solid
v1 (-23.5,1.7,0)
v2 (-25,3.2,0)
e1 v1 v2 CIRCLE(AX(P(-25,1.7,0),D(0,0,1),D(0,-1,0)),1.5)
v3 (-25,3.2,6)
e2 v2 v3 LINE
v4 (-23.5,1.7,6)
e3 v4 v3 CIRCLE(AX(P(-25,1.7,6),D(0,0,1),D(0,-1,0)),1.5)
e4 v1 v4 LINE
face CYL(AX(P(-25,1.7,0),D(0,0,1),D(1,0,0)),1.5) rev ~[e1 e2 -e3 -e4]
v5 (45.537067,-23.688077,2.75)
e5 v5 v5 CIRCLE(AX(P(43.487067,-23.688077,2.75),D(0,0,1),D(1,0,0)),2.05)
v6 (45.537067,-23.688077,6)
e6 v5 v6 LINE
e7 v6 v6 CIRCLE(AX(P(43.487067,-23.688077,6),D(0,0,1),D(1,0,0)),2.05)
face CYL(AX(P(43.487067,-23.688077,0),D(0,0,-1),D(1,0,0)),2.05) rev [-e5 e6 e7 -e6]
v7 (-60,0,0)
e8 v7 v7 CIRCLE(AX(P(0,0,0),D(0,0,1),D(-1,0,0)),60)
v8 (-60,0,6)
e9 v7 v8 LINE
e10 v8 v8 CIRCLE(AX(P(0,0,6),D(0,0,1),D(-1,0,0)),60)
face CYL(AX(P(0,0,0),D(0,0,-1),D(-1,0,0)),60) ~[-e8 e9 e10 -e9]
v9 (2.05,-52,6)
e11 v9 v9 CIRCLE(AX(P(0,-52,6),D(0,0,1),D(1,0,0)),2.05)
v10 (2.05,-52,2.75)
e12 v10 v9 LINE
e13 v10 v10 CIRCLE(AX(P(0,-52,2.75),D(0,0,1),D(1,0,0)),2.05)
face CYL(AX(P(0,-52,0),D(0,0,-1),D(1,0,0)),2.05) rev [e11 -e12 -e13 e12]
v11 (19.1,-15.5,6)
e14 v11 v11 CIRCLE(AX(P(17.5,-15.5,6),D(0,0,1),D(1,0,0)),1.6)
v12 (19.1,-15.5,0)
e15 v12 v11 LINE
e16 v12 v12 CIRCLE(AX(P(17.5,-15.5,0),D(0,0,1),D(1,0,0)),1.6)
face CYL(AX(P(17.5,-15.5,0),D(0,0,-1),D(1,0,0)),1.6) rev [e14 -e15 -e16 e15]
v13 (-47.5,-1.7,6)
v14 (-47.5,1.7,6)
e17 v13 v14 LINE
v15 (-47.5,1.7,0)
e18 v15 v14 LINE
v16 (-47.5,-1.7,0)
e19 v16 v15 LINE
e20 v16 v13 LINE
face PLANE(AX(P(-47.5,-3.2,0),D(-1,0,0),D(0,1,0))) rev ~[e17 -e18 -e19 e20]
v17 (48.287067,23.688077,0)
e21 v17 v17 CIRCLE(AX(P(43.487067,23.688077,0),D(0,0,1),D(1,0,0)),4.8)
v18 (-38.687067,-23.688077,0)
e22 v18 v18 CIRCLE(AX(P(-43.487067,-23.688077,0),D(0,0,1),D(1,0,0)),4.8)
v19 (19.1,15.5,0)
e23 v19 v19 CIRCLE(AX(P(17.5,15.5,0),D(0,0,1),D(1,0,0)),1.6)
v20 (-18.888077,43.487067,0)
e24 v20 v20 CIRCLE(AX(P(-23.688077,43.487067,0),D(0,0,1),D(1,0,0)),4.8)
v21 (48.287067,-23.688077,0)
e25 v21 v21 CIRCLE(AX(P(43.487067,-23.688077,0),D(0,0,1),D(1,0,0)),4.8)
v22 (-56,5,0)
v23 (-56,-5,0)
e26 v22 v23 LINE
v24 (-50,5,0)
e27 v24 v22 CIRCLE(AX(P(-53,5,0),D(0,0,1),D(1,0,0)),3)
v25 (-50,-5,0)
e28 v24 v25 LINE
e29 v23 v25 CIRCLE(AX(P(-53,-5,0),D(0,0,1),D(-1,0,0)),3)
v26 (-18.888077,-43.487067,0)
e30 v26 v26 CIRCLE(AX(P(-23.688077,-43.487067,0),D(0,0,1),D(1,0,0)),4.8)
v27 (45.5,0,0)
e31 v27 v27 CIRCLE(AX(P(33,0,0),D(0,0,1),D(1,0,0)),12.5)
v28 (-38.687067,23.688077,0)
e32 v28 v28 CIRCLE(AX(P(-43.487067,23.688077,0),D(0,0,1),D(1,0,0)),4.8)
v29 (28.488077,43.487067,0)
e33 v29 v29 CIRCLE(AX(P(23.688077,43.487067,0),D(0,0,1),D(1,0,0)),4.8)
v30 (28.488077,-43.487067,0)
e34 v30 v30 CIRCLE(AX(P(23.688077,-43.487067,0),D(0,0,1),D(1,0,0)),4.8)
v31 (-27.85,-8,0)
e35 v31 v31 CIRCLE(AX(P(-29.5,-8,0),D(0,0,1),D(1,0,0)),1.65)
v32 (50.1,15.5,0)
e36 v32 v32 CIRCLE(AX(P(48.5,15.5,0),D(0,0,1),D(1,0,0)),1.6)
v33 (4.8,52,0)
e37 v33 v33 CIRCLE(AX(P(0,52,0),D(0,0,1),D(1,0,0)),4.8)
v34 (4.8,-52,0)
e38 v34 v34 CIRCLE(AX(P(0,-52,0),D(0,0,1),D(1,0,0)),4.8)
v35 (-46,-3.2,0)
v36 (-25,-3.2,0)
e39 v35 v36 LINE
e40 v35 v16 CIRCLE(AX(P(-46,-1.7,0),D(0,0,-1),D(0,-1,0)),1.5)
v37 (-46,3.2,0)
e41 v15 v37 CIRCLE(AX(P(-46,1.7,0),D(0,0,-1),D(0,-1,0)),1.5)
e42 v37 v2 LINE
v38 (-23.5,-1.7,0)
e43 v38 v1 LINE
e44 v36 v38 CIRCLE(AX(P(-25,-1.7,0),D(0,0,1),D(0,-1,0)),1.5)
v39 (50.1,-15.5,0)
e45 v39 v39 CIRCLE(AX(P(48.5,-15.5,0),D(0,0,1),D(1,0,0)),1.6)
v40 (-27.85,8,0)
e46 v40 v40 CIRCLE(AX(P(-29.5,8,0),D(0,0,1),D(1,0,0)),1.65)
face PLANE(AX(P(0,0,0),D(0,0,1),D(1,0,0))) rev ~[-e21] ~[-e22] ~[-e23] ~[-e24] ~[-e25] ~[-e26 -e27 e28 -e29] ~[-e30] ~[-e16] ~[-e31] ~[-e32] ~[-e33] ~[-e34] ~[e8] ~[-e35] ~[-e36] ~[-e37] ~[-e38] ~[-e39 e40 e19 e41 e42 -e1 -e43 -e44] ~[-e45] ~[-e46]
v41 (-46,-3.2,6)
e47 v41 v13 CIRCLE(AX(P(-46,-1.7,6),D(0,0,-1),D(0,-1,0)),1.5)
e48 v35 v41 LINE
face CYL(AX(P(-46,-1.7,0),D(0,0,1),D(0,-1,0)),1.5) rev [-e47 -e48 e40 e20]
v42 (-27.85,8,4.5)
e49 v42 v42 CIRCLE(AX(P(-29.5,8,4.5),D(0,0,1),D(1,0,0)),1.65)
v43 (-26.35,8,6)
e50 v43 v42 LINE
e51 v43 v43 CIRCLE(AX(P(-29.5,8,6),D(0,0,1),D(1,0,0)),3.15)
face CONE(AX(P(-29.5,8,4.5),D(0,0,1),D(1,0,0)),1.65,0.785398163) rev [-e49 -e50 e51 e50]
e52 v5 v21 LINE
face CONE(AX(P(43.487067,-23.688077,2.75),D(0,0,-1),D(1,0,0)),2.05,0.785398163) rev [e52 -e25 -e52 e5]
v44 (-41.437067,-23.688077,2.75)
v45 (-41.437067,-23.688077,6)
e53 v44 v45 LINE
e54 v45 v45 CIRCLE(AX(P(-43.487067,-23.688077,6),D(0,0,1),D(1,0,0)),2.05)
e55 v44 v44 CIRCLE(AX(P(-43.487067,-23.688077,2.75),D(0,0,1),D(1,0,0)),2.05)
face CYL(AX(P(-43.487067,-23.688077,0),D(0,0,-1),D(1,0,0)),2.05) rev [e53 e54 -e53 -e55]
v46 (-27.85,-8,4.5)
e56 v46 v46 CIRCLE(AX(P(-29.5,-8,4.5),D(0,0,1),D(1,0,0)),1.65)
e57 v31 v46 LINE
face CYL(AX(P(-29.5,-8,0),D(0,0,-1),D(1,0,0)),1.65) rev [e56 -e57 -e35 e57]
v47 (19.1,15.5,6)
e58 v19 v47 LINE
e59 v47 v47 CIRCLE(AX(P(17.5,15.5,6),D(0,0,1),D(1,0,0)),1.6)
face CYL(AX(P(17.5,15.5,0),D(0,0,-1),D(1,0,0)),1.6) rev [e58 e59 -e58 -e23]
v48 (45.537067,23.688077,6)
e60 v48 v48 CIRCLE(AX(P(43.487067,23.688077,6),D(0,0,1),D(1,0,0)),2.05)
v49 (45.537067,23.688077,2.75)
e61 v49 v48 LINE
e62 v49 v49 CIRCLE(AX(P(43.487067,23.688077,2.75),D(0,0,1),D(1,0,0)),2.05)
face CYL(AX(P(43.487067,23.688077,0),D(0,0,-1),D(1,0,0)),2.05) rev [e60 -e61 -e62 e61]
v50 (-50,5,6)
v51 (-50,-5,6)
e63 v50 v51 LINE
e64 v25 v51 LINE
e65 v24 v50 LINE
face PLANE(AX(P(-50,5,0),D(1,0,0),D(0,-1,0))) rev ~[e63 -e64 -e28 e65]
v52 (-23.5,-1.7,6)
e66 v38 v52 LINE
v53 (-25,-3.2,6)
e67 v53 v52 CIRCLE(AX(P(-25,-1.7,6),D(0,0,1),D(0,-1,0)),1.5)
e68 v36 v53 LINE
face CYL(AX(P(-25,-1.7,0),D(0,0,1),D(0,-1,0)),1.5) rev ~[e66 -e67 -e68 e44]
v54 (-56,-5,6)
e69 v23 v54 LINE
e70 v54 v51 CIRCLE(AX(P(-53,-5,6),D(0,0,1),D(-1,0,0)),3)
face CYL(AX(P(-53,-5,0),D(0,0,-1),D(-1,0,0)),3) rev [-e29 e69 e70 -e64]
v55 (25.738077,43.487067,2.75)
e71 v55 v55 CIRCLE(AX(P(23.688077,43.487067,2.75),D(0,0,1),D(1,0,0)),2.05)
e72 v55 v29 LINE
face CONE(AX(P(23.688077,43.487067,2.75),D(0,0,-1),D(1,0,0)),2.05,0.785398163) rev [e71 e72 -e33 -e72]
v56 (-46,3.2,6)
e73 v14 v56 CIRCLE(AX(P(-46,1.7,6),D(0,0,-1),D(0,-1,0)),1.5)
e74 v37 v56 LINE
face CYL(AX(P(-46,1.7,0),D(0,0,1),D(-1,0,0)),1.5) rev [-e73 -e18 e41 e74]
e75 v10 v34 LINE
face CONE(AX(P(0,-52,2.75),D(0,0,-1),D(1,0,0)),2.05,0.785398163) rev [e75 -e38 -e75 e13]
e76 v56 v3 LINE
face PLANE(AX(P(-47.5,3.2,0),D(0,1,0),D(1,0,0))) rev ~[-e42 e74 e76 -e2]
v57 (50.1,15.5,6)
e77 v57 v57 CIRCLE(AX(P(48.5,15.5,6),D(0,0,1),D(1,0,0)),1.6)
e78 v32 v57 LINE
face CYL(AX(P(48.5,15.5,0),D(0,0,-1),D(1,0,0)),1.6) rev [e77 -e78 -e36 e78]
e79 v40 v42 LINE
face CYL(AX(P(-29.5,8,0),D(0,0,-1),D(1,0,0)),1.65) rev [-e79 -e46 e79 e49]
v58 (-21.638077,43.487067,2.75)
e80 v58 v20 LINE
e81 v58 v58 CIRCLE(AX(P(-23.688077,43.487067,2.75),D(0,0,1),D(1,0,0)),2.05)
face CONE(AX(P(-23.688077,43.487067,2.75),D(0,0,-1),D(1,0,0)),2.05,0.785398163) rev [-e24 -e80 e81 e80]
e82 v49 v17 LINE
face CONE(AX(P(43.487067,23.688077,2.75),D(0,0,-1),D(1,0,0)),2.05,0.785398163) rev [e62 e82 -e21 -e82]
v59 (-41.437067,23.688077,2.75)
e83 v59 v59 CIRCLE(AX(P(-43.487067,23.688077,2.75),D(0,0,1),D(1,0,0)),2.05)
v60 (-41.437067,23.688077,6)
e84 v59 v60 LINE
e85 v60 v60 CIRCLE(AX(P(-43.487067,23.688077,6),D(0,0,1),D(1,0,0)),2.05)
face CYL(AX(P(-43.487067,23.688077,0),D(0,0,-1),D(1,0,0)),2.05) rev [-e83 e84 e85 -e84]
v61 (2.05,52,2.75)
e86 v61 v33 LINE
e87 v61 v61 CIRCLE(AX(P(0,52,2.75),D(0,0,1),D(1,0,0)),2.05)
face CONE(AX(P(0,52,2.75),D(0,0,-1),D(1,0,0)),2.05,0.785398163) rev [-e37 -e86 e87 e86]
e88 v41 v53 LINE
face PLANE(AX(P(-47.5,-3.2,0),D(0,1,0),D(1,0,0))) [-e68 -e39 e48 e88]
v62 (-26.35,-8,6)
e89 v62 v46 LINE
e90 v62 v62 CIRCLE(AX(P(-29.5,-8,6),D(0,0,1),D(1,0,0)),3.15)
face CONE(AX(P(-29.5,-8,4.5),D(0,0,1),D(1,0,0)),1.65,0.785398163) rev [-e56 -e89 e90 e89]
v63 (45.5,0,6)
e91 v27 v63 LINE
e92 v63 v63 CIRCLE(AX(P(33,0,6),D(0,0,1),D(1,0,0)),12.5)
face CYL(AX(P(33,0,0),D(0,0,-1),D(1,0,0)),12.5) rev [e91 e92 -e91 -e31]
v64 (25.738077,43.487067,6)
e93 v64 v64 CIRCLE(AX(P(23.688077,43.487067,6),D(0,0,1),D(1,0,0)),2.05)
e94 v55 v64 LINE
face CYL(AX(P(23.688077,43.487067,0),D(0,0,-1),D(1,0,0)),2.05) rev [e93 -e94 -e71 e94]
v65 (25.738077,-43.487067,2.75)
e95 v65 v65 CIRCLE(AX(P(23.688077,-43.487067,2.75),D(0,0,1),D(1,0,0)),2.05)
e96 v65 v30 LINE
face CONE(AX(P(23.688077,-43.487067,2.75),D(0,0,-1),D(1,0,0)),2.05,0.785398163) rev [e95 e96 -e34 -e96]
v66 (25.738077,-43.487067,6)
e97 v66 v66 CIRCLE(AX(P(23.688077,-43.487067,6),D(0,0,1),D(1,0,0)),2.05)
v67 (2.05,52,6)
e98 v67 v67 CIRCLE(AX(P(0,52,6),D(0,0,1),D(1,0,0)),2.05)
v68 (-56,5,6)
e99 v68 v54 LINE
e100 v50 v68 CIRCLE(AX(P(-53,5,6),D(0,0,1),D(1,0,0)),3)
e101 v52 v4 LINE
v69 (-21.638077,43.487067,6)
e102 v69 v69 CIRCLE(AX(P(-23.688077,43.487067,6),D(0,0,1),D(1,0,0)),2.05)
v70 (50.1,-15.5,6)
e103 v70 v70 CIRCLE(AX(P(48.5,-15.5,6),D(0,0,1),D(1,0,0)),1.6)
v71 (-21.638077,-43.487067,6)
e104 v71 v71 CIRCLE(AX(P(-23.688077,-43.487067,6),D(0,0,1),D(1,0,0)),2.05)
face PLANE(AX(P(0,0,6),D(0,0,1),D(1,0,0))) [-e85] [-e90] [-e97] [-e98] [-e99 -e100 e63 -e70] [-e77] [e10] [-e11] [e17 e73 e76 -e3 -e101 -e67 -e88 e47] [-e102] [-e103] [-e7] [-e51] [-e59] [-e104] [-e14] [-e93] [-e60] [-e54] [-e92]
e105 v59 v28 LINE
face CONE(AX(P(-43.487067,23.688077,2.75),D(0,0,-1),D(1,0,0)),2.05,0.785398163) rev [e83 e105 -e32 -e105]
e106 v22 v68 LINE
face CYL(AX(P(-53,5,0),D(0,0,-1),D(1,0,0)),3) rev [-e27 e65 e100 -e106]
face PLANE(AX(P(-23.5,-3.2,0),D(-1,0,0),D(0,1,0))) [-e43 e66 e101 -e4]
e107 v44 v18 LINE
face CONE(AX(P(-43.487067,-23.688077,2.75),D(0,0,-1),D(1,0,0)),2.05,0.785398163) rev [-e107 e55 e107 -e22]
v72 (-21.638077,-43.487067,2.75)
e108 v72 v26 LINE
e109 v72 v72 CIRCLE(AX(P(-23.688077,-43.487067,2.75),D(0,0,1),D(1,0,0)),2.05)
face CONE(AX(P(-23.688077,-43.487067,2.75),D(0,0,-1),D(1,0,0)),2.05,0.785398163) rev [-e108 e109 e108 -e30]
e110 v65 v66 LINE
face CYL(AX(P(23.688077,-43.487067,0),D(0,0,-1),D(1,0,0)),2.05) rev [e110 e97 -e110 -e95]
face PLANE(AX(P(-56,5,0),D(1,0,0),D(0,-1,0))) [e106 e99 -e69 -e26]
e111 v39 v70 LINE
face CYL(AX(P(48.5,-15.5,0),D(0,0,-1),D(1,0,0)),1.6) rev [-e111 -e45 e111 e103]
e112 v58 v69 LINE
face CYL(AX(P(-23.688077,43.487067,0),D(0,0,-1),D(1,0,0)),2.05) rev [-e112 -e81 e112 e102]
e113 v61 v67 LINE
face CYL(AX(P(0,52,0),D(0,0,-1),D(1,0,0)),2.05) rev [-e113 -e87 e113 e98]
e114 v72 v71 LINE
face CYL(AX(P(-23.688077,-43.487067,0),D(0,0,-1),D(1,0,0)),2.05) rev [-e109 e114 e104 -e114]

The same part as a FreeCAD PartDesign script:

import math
import FreeCAD as App
import Part
import Sketcher
from FreeCAD import Vector
Q = App.Units.Quantity


def edges_at(feature, points):
    """Names of the edges that pass closest to the given points."""
    edges = feature.Shape.Edges
    near = lambda p: min(range(len(edges)), key=lambda i: edges[i].distToShape(Part.Vertex(*p))[0])
    return sorted({f"Edge{near(p) + 1}" for p in points})

doc = App.newDocument("Part")
body = doc.addObject("PartDesign::Body", "Body")

sketch1 = doc.addObject("Sketcher::SketchObject", "Sketch")
body.addObject(sketch1)
sketch1.AttachmentSupport = (doc.XY_Plane, [""])
sketch1.MapMode = "FlatFace"
sketch1.addGeometry([
    Part.Circle(Vector(0, 0, 0), Vector(0, 0, 1), 60),
    Part.Circle(Vector(-23.7, -43.5, 0), Vector(0, 0, 1), 2),
    Part.Circle(Vector(-43.5, -23.7, 0), Vector(0, 0, 1), 2),
    Part.Circle(Vector(-29.5, -8, 0), Vector(0, 0, 1), 1.6),
    Part.Circle(Vector(0, -52, 0), Vector(0, 0, 1), 2),
    Part.Circle(Vector(23.7, -43.5, 0), Vector(0, 0, 1), 2),
    Part.Circle(Vector(17.5, -15.5, 0), Vector(0, 0, 1), 1.6),
    Part.Circle(Vector(43.5, -23.7, 0), Vector(0, 0, 1), 2),
    Part.Circle(Vector(48.5, -15.5, 0), Vector(0, 0, 1), 1.6),
    Part.ArcOfCircle(Part.Circle(Vector(-53, 5, 0), Vector(0, 0, 1), 3), math.radians(0), math.radians(180)),
    Part.LineSegment(Vector(-50, 5, 0), Vector(-50, -5, 0)),
    Part.ArcOfCircle(Part.Circle(Vector(-53, -5, 0), Vector(0, 0, 1), 3), math.radians(180), math.radians(360)),
    Part.LineSegment(Vector(-56, -5, 0), Vector(-56, 5, 0)),
    Part.LineSegment(Vector(-23.5, -3.2, 0), Vector(-47.5, -3.2, 0)),
    Part.LineSegment(Vector(-47.5, -3.2, 0), Vector(-47.5, 3.2, 0)),
    Part.LineSegment(Vector(-47.5, 3.2, 0), Vector(-23.5, 3.2, 0)),
    Part.LineSegment(Vector(-23.5, 3.2, 0), Vector(-23.5, -3.2, 0)),
    Part.Circle(Vector(-29.5, 8, 0), Vector(0, 0, 1), 1.6),
    Part.Circle(Vector(-43.5, 23.7, 0), Vector(0, 0, 1), 2),
    Part.Circle(Vector(-23.7, 43.5, 0), Vector(0, 0, 1), 2),
    Part.Circle(Vector(17.5, 15.5, 0), Vector(0, 0, 1), 1.6),
    Part.Circle(Vector(33, 0, 0), Vector(0, 0, 1), 12.5),
    Part.Circle(Vector(48.5, 15.5, 0), Vector(0, 0, 1), 1.6),
    Part.Circle(Vector(43.5, 23.7, 0), Vector(0, 0, 1), 2),
    Part.Circle(Vector(0, 52, 0), Vector(0, 0, 1), 2),
    Part.Circle(Vector(23.7, 43.5, 0), Vector(0, 0, 1), 2),
], False)
sketch1.addConstraint([
    Sketcher.Constraint("Tangent", 9, 1, 10, 1),
    Sketcher.Constraint("Tangent", 10, 2, 11, 2),
    Sketcher.Constraint("Tangent", 11, 1, 12, 1),
    Sketcher.Constraint("Tangent", 12, 2, 9, 2),
    Sketcher.Constraint("Coincident", 13, 2, 14, 1),
    Sketcher.Constraint("Coincident", 14, 2, 15, 1),
    Sketcher.Constraint("Coincident", 15, 2, 16, 1),
    Sketcher.Constraint("Coincident", 16, 2, 13, 1),
    Sketcher.Constraint("Vertical", 10),
    Sketcher.Constraint("Vertical", 12),
    Sketcher.Constraint("Horizontal", 13),
    Sketcher.Constraint("Vertical", 14),
    Sketcher.Constraint("Horizontal", 15),
    Sketcher.Constraint("Vertical", 16),
    Sketcher.Constraint("Coincident", 0, 3, -1, 1),
    Sketcher.Constraint("Equal", 1, 2),
    Sketcher.Constraint("Equal", 2, 4),
    Sketcher.Constraint("Equal", 4, 5),
    Sketcher.Constraint("Equal", 5, 7),
    Sketcher.Constraint("Equal", 6, 8),
    Sketcher.Constraint("Equal", 3, 17),
    Sketcher.Constraint("Equal", 7, 18),
    Sketcher.Constraint("Equal", 18, 19),
    Sketcher.Constraint("Equal", 8, 20),
    Sketcher.Constraint("Equal", 20, 22),
    Sketcher.Constraint("Equal", 19, 23),
    Sketcher.Constraint("Equal", 23, 24),
    Sketcher.Constraint("Equal", 24, 25),
    Sketcher.Constraint("Symmetric", 7, 3, 18, 3, -1, 1),
    Sketcher.Constraint("Symmetric", 5, 3, 19, 3, -1, 1),
    Sketcher.Constraint("Symmetric", 2, 3, 23, 3, -1, 1),
    Sketcher.Constraint("Symmetric", 4, 3, 24, 3, -1, 1),
    Sketcher.Constraint("Symmetric", 1, 3, 25, 3, -1, 1),
    Sketcher.Constraint("Symmetric", 1, 3, 5, 3, -2),
    Sketcher.Constraint("Symmetric", 2, 3, 7, 3, -2),
    Sketcher.Constraint("Symmetric", 3, 3, 17, 3, -1),
    Sketcher.Constraint("Symmetric", 6, 3, 20, 3, -1),
    Sketcher.Constraint("Symmetric", 8, 3, 22, 3, -1),
    Sketcher.Constraint("PointOnObject", 4, 3, -2),
    Sketcher.Constraint("PointOnObject", 21, 3, -1),
    Sketcher.Constraint("Horizontal", 6, 3, 8, 3),
    Sketcher.Constraint("Diameter", 0, Q("120 mm")),
    Sketcher.Constraint("Diameter", 21, Q("25 mm")),
    Sketcher.Constraint("Radius", 9, Q("3 mm")),
    Sketcher.Constraint("Diameter", 1, Q("4.1 mm")),
    Sketcher.Constraint("Diameter", 3, Q("3.3 mm")),
    Sketcher.Constraint("Diameter", 6, Q("3.2 mm")),
    Sketcher.Constraint("DistanceX", 13, 2, 13, 1, Q("24 mm")),
    Sketcher.Constraint("DistanceY", 10, 2, 10, 1, Q("10 mm")),
    Sketcher.Constraint("DistanceY", 14, 1, 14, 2, Q("6.4 mm")),
    Sketcher.Constraint("DistanceY", 3, 3, -1, 1, Q("8 mm")),
    Sketcher.Constraint("DistanceY", 4, 3, -1, 1, Q("52 mm")),
    Sketcher.Constraint("DistanceX", 9, 3, -1, 1, Q("53 mm")),
    Sketcher.Constraint("DistanceY", -1, 1, 9, 3, Q("5 mm")),
    Sketcher.Constraint("DistanceX", -1, 1, 21, 3, Q("33 mm")),
    Sketcher.Constraint("DistanceX", 3, 3, 6, 3, Q("47 mm")),
    Sketcher.Constraint("DistanceX", 6, 3, 8, 3, Q("31 mm")),
    Sketcher.Constraint("DistanceY", 6, 3, 20, 3, Q("31 mm")),
    Sketcher.Constraint("DistanceX", 17, 3, 15, 2, Q("6 mm")),
    Sketcher.Constraint("DistanceX", 3, 3, -1, 1, Q("29.5 mm")),
    Sketcher.Constraint("DistanceY", 13, 2, -1, 1, Q("3.2 mm")),
    Sketcher.Constraint("DistanceX", 2, 3, 1, 3, Q("19.79899 mm")),
    Sketcher.Constraint("DistanceY", 1, 3, 2, 3, Q("19.79899 mm")),
    Sketcher.Constraint("DistanceX", 1, 3, -1, 1, Q("23.688077 mm")),
    Sketcher.Constraint("DistanceY", 1, 3, -1, 1, Q("43.487067 mm")),
])
pad1 = doc.addObject("PartDesign::Pad", "Pad")
body.addObject(pad1)
pad1.Profile = sketch1
pad1.Length = 6
doc.recompute()

chamfer = doc.addObject("PartDesign::Chamfer", "Chamfer")
body.addObject(chamfer)
chamfer.Base = (pad1, edges_at(pad1, [
    (41.437, -23.688, 0),
    (-45.537, 23.688, 0),
    (41.437, 23.688, 0),
    (-2.05, 52, 0),
    (-2.05, -52, 0),
    (21.638, 43.487, 0),
    (-45.537, -23.688, 0),
    (-25.738, 43.487, 0),
    (-25.738, -43.487, 0),
    (21.638, -43.487, 0),
]))
chamfer.Size = 2.75
doc.recompute()

chamfer2 = doc.addObject("PartDesign::Chamfer", "Chamfer001")
body.addObject(chamfer2)
chamfer2.Base = (chamfer, edges_at(chamfer, [(-31.15, -8, 6), (-31.15, 8, 6)]))
chamfer2.Size = 1.5
doc.recompute()

fillet = doc.addObject("PartDesign::Fillet", "Fillet")
body.addObject(fillet)
fillet.Base = (chamfer2, edges_at(chamfer2, [
    (-23.5, 3.2, 3),
    (-23.5, -3.2, 3),
    (-47.5, 3.2, 3),
    (-47.5, -3.2, 3),
]))
fillet.Radius = 1.5

doc.recompute()
